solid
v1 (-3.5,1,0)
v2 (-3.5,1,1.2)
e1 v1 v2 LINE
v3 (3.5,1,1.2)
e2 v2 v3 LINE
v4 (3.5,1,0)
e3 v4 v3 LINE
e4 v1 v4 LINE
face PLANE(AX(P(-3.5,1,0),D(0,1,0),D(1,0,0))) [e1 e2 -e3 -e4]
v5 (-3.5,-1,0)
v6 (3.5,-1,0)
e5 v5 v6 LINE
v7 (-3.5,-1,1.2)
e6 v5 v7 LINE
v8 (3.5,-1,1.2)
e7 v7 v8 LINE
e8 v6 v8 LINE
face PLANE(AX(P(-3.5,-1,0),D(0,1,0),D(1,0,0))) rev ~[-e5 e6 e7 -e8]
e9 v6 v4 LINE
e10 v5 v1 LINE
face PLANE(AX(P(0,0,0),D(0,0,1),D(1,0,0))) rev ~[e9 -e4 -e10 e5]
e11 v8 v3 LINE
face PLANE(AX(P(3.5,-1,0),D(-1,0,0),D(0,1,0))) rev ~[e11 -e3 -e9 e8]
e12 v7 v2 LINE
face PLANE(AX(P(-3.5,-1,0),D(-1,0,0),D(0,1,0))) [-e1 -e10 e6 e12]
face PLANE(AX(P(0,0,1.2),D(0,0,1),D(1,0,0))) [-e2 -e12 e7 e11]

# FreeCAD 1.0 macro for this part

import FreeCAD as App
import Part
import Sketcher


def add_polygon(sketch, points):
    """Adds a closed chain of lines whose ends are joined by coincident constraints."""
    first, n = sketch.GeometryCount, len(points)
    for a, b in zip(points, points[1:] + points[:1]):
        sketch.addGeometry(Part.LineSegment(App.Vector(*a, 0), App.Vector(*b, 0)), False)
    for i in range(n):
        sketch.addConstraint(Sketcher.Constraint("Coincident", first + i, 2, first + (i + 1) % n, 1))

doc = App.newDocument("Part")
params = doc.addObject("Spreadsheet::Sheet", "Params")
for row, (alias, value) in enumerate([
    ("sketch1_width", "7 mm"),
    ("sketch1_height", "2 mm"),
    ("pad1_length", "1.2 mm"),
], start=1):
    params.set(f"A{row}", alias)
    params.set(f"B{row}", "=" + value)
    params.setAlias(f"B{row}", alias)

body = doc.addObject("PartDesign::Body", "Body")

sketch1 = body.newObject("Sketcher::SketchObject", "Sketch")
sketch1.AttachmentSupport = (doc.getObject("XY_Plane"), [""])
sketch1.MapMode = "FlatFace"
add_polygon(sketch1, [(-3.5, 1), (-3.5, -1), (3.5, -1), (3.5, 1)])
sketch1.addConstraint([
    Sketcher.Constraint("Vertical", 0),
    Sketcher.Constraint("Horizontal", 1),
    Sketcher.Constraint("Vertical", 2),
    Sketcher.Constraint("Horizontal", 3),
    Sketcher.Constraint("Symmetric", 0, 2, 2, 2, -1, 1),
    Sketcher.Constraint("DistanceX", 1, 1, 1, 2, 7.0),
    Sketcher.Constraint("DistanceY", 0, 2, 0, 1, 2.0),
])
sketch1.setExpression("Constraints[9]", "Params.sketch1_width")
sketch1.setExpression("Constraints[10]", "Params.sketch1_height")
pad1 = body.newObject("PartDesign::Pad", "Pad")
pad1.Profile = sketch1
pad1.setExpression("Length", "Params.pad1_length")

doc.recompute()
